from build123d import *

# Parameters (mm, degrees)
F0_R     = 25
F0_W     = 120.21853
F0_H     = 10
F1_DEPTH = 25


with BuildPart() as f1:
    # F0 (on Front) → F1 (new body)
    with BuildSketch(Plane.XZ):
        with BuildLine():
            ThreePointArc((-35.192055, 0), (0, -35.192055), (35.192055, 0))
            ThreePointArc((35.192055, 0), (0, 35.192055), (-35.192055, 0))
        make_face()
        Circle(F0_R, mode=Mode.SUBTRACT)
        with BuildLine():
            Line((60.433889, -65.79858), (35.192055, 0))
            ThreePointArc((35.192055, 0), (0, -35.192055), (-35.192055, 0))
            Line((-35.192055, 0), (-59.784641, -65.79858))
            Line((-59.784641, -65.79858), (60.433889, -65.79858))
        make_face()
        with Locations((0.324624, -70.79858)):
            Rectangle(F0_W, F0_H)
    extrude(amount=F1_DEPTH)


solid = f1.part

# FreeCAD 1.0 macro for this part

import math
import FreeCAD as App
import Part
import Sketcher

V = App.Vector

doc = App.newDocument("Part")
body = doc.addObject("PartDesign::Body", "Body")

# Sketch on XZ plane
sketch1 = doc.addObject("Sketcher::SketchObject", "Sketch")
body.addObject(sketch1)
sketch1.AttachmentSupport = (doc.XZ_Plane, [""])
sketch1.MapMode = "FlatFace"
sketch1.addGeometry(Part.ArcOfCircle(Part.Circle(V(0, 0, 0), V(0, 0, 1), 35.192055), math.radians(0), math.radians(180)), False)
sketch1.addGeometry(Part.LineSegment(V(-35.192055, 0, 0), V(-59.784641, -65.79858, 0)), False)
sketch1.addGeometry(Part.LineSegment(V(-59.784641, -65.79858, 0), V(-59.784641, -75.79858, 0)), False)
sketch1.addGeometry(Part.LineSegment(V(-59.784641, -75.79858, 0), V(60.433889, -75.79858, 0)), False)
sketch1.addGeometry(Part.LineSegment(V(60.433889, -75.79858, 0), V(60.433889, -65.79858, 0)), False)
sketch1.addGeometry(Part.LineSegment(V(60.433889, -65.79858, 0), V(35.192055, 0, 0)), False)
sketch1.addGeometry(Part.Circle(V(0, 0, 0), V(0, 0, 1), 25), False)
sketch1.addConstraint(Sketcher.Constraint("Coincident", 0, 2, 1, 1))
sketch1.addConstraint(Sketcher.Constraint("Coincident", 1, 2, 2, 1))
sketch1.addConstraint(Sketcher.Constraint("Coincident", 2, 2, 3, 1))
sketch1.addConstraint(Sketcher.Constraint("Coincident", 3, 2, 4, 1))
sketch1.addConstraint(Sketcher.Constraint("Coincident", 4, 2, 5, 1))
sketch1.addConstraint(Sketcher.Constraint("Coincident", 5, 2, 0, 1))
sketch1.addConstraint(Sketcher.Constraint("Vertical", 2))
sketch1.addConstraint(Sketcher.Constraint("Horizontal", 3))
sketch1.addConstraint(Sketcher.Constraint("Vertical", 4))
sketch1.addConstraint(Sketcher.Constraint("Coincident", 0, 3, -1, 1))
sketch1.addConstraint(Sketcher.Constraint("Coincident", 6, 3, -1, 1))
sketch1.addConstraint(Sketcher.Constraint("PointOnObject", 0, 2, -1))
sketch1.addConstraint(Sketcher.Constraint("PointOnObject", 5, 2, -1))
sketch1.addConstraint(Sketcher.Constraint("Horizontal", 1, 2, 4, 2))
sketch1.addConstraint(Sketcher.Constraint("Diameter", 6, 50.0))
sketch1.addConstraint(Sketcher.Constraint("DistanceY", 2, 2, 2, 1, 10.0))
sketch1.addConstraint(Sketcher.Constraint("Radius", 0, 35.192055))
sketch1.addConstraint(Sketcher.Constraint("DistanceX", 3, 1, 3, 2, 120.21853))
sketch1.addConstraint(Sketcher.Constraint("DistanceX", 1, 2, -1, 1, 59.784641))
sketch1.addConstraint(Sketcher.Constraint("DistanceY", 1, 2, -1, 1, 65.79858))
pad1 = doc.addObject("PartDesign::Pad", "Pad")
body.addObject(pad1)
pad1.Profile = sketch1
pad1.Length = 25

doc.recompute()
